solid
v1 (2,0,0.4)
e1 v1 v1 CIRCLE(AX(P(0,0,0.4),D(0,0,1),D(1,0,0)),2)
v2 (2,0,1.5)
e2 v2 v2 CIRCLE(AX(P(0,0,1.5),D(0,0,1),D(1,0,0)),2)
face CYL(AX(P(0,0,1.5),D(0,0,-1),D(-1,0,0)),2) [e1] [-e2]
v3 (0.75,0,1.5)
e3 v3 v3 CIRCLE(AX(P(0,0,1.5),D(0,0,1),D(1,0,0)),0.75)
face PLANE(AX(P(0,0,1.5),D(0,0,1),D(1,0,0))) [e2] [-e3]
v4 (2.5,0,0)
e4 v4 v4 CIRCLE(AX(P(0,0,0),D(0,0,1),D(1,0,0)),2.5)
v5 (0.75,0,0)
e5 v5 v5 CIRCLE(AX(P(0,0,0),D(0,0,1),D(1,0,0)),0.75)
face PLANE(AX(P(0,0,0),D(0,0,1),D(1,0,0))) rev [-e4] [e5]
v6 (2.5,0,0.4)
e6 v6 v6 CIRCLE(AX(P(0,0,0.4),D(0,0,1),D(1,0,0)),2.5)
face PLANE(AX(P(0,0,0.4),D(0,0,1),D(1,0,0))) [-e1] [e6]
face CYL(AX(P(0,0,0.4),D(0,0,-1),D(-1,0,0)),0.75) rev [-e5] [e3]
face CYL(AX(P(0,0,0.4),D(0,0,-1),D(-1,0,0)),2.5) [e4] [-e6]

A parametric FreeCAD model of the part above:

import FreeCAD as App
import Part
import Sketcher
from FreeCAD import Vector

doc = App.newDocument("Part")
params = doc.addObject("Spreadsheet::Sheet", "Params")
for row, (alias, value) in enumerate([
    ("sketch1_diameter", "5 mm"),
    ("sketch1_diameter2", "1.5 mm"),
    ("pad1_length", "0.4 mm"),
    ("sketch2_diameter", "4 mm"),
    ("sketch2_diameter2", "1.5 mm"),
    ("pad2_length", "1.1 mm"),
], start=1):
    params.set(f"A{row}", alias)
    params.set(f"B{row}", "=" + value)
    params.setAlias(f"B{row}", alias)

body = doc.addObject("PartDesign::Body", "Body")

sketch1 = doc.addObject("Sketcher::SketchObject", "Sketch")
body.addObject(sketch1)
sketch1.AttachmentSupport = (doc.XY_Plane, [""])
sketch1.MapMode = "FlatFace"
sketch1.addGeometry(Part.Circle(Vector(0, 0, 0), Vector(0, 0, 1), 2.5), False)
sketch1.addGeometry(Part.Circle(Vector(0, 0, 0), Vector(0, 0, 1), 0.8), False)
sketch1.addConstraint(Sketcher.Constraint("Coincident", 0, 3, -1, 1))
sketch1.addConstraint(Sketcher.Constraint("Coincident", 1, 3, -1, 1))
sketch1.addConstraint(Sketcher.Constraint("Diameter", 0, 5.0))
sketch1.addConstraint(Sketcher.Constraint("Diameter", 1, 1.5))
sketch1.setExpression("Constraints[2]", "Params.sketch1_diameter")
sketch1.setExpression("Constraints[3]", "Params.sketch1_diameter2")
pad1 = doc.addObject("PartDesign::Pad", "Pad")
body.addObject(pad1)
pad1.Profile = sketch1
pad1.setExpression("Length", "Params.pad1_length")

sketch2 = doc.addObject("Sketcher::SketchObject", "Sketch001")
body.addObject(sketch2)
sketch2.AttachmentSupport = (doc.XY_Plane, [""])
sketch2.MapMode = "FlatFace"
sketch2.AttachmentOffset = App.Placement(Vector(0, 0, 0.4), App.Rotation())
sketch2.addGeometry(Part.Circle(Vector(0, 0, 0), Vector(0, 0, 1), 2), False)
sketch2.addGeometry(Part.Circle(Vector(0, 0, 0), Vector(0, 0, 1), 0.8), False)
sketch2.addConstraint(Sketcher.Constraint("Coincident", 0, 3, -1, 1))
sketch2.addConstraint(Sketcher.Constraint("Coincident", 1, 3, -1, 1))
sketch2.addConstraint(Sketcher.Constraint("Diameter", 0, 4.0))
sketch2.addConstraint(Sketcher.Constraint("Diameter", 1, 1.5))
sketch2.setExpression("Constraints[2]", "Params.sketch2_diameter")
sketch2.setExpression("Constraints[3]", "Params.sketch2_diameter2")
pad2 = doc.addObject("PartDesign::Pad", "Pad001")
body.addObject(pad2)
pad2.Profile = sketch2
pad2.setExpression("Length", "Params.pad2_length")

doc.recompute()
